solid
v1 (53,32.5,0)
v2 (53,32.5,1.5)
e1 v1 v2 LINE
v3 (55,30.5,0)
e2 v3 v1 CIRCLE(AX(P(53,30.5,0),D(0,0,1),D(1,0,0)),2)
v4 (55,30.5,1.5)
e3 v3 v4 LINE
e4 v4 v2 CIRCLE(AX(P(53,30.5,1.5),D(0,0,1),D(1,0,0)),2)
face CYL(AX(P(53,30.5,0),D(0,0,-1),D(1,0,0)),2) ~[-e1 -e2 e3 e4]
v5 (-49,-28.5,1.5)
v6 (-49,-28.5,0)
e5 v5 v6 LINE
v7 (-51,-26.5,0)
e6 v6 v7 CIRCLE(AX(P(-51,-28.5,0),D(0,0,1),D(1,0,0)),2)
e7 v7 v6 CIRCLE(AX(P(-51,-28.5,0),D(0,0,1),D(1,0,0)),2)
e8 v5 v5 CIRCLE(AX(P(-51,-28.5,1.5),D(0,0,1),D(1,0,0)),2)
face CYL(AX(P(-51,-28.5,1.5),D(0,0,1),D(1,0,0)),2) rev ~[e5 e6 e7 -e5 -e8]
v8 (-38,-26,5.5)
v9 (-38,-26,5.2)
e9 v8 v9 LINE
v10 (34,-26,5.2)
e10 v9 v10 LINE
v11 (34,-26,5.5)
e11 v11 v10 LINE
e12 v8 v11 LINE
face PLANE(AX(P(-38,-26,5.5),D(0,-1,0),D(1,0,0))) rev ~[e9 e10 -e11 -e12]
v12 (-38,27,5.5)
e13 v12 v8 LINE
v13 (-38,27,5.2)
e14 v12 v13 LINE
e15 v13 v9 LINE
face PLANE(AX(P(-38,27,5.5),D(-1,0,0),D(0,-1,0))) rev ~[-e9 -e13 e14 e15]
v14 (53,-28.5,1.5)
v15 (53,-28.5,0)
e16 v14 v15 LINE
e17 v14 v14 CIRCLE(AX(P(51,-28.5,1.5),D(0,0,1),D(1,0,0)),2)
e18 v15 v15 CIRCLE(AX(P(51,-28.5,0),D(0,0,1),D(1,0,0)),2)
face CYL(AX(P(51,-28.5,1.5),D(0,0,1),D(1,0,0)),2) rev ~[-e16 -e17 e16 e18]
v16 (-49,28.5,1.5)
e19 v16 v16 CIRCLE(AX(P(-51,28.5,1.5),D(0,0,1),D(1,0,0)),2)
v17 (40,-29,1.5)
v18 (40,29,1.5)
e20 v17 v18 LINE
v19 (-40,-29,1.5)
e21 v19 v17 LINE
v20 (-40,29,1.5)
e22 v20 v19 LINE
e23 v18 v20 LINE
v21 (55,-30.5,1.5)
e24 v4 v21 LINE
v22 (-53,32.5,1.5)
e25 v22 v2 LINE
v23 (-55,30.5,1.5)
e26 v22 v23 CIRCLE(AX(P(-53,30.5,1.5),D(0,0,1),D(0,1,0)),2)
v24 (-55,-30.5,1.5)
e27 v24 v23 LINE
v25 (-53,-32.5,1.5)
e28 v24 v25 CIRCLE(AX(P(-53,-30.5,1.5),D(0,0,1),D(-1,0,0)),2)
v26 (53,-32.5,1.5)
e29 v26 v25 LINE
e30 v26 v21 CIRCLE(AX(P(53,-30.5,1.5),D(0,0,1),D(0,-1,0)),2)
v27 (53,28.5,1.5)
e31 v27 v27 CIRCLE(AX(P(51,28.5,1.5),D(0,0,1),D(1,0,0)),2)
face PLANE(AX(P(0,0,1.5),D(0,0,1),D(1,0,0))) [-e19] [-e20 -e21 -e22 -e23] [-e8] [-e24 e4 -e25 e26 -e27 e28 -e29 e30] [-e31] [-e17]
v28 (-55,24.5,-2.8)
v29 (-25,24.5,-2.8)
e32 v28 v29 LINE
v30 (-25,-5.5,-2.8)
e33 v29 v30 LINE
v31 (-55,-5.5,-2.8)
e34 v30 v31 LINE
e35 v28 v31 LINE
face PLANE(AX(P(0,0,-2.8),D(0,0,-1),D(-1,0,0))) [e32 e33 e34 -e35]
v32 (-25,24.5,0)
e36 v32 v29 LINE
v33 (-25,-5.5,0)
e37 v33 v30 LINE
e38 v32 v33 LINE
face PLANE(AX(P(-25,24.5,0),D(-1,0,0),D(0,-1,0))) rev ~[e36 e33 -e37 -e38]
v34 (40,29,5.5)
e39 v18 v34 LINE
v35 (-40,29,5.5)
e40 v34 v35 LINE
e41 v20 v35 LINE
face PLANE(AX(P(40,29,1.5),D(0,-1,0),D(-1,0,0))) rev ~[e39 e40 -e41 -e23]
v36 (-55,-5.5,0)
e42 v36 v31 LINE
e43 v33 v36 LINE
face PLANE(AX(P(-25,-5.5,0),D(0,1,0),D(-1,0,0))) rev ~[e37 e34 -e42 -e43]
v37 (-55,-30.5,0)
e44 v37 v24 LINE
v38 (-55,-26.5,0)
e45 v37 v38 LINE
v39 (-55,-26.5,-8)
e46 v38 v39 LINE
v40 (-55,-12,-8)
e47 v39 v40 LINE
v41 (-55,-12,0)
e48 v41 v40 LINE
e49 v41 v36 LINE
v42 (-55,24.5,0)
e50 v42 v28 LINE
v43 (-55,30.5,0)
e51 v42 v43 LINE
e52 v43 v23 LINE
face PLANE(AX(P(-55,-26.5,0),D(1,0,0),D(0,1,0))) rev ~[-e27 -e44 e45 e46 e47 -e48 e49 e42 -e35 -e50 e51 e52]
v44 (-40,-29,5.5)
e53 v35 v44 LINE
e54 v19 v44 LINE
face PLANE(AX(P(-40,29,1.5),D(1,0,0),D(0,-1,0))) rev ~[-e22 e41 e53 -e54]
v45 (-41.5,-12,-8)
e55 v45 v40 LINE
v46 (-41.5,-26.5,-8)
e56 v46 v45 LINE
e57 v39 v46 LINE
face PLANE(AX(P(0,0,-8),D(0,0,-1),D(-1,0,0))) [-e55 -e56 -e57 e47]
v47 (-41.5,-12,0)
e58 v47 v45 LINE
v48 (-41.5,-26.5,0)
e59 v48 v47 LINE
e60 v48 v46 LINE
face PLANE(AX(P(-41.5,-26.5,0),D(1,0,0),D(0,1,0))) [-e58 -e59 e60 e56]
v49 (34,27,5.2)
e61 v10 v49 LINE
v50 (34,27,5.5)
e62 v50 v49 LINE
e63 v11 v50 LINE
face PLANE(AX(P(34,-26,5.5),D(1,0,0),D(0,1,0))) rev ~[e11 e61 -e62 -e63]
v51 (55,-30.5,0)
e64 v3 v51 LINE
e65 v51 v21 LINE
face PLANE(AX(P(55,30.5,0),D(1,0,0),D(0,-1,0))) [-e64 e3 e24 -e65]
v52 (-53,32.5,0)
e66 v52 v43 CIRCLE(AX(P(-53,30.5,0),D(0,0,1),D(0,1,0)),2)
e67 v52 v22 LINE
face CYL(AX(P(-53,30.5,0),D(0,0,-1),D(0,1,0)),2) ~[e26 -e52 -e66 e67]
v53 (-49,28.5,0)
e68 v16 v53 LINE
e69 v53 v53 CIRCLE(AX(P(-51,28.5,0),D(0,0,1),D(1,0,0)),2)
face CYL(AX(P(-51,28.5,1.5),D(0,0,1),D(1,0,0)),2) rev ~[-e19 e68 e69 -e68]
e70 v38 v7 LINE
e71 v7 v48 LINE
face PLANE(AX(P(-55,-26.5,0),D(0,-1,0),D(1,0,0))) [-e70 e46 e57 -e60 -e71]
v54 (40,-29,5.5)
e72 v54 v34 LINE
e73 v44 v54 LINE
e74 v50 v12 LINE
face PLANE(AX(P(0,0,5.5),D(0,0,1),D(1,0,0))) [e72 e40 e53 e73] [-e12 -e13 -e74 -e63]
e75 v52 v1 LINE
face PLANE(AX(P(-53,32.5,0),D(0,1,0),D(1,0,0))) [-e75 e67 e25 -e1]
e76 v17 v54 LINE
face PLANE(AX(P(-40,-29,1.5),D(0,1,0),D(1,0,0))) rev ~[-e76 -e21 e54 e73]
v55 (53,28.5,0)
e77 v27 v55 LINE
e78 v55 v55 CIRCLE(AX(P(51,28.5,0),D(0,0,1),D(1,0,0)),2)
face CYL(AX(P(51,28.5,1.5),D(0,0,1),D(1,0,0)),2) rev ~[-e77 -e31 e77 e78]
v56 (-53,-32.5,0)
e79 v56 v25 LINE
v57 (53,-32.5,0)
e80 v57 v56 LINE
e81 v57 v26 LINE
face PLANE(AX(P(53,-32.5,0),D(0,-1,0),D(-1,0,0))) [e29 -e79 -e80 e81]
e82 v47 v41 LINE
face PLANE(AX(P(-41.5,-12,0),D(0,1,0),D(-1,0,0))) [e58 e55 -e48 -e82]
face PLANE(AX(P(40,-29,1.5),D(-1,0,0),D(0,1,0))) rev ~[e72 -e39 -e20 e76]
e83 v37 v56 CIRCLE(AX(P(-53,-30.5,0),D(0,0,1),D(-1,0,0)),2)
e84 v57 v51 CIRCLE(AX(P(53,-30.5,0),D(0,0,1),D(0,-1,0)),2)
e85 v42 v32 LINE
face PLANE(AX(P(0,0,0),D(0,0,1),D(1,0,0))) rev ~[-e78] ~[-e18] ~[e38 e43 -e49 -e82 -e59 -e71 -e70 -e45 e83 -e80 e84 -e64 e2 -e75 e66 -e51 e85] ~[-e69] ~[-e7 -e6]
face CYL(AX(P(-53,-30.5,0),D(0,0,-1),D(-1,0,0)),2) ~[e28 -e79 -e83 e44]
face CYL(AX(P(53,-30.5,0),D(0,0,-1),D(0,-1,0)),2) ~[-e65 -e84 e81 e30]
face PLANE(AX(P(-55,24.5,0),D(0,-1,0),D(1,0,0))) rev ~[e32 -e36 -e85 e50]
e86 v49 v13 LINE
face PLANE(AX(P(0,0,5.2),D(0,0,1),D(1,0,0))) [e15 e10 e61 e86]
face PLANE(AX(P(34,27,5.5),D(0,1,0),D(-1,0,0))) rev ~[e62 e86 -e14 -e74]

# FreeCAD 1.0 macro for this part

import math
import FreeCAD as App
import Part
import Sketcher

V = App.Vector
Q = App.Units.Quantity

doc = App.newDocument("Part")
body = doc.addObject("PartDesign::Body", "Body")

sketch1 = body.newObject("Sketcher::SketchObject", "Sketch")
sketch1.AttachmentSupport = (doc.getObject("XY_Plane"), [""])
sketch1.MapMode = "FlatFace"
sketch1.addGeometry([
    Part.LineSegment(V(53, 32.5, 0), V(-53, 32.5, 0)),
    Part.ArcOfCircle(Part.Circle(V(-53, 30.5, 0), V(0, 0, 1), 2), math.radians(90), math.radians(180)),
    Part.LineSegment(V(-55, 30.5, 0), V(-55, -30.5, 0)),
    Part.ArcOfCircle(Part.Circle(V(-53, -30.5, 0), V(0, 0, 1), 2), math.radians(180), math.radians(270)),
    Part.LineSegment(V(-53, -32.5, 0), V(53, -32.5, 0)),
    Part.ArcOfCircle(Part.Circle(V(53, -30.5, 0), V(0, 0, 1), 2), math.radians(-90), math.radians(0)),
    Part.LineSegment(V(55, -30.5, 0), V(55, 30.5, 0)),
    Part.ArcOfCircle(Part.Circle(V(53, 30.5, 0), V(0, 0, 1), 2), math.radians(0), math.radians(90)),
], False)
sketch1.addConstraint([
    Sketcher.Constraint("Tangent", 0, 2, 1, 1),
    Sketcher.Constraint("Tangent", 1, 2, 2, 1),
    Sketcher.Constraint("Tangent", 2, 2, 3, 1),
    Sketcher.Constraint("Tangent", 3, 2, 4, 1),
    Sketcher.Constraint("Tangent", 4, 2, 5, 1),
    Sketcher.Constraint("Tangent", 5, 2, 6, 1),
    Sketcher.Constraint("Tangent", 6, 2, 7, 1),
    Sketcher.Constraint("Tangent", 7, 2, 0, 1),
    Sketcher.Constraint("Horizontal", 0),
    Sketcher.Constraint("Vertical", 2),
    Sketcher.Constraint("Horizontal", 4),
    Sketcher.Constraint("Vertical", 6),
    Sketcher.Constraint("Equal", 1, 3),
    Sketcher.Constraint("Equal", 3, 5),
    Sketcher.Constraint("Equal", 5, 7),
    Sketcher.Constraint("Symmetric", 1, 3, 5, 3, -1, 1),
    Sketcher.Constraint("Radius", 1, Q("2 mm")),
    Sketcher.Constraint("DistanceY", 3, 2, 0, 2, Q("65 mm")),
    Sketcher.Constraint("DistanceX", 0, 2, 0, 1, Q("106 mm")),
])
pad1 = body.newObject("PartDesign::Pad", "Pad")
pad1.Profile = sketch1
pad1.Length = 1.5

sketch2 = body.newObject("Sketcher::SketchObject", "Sketch001")
sketch2.AttachmentSupport = (doc.getObject("XY_Plane"), [""])
sketch2.MapMode = "FlatFace"
sketch2.AttachmentOffset = App.Placement(V(0, 0, 1.5), App.Rotation())
sketch2.addGeometry([
    Part.Circle(V(-51, 28.5, 0), V(0, 0, 1), 2),
    Part.Circle(V(-51, -28.5, 0), V(0, 0, 1), 2),
    Part.Circle(V(51, -28.5, 0), V(0, 0, 1), 2),
    Part.Circle(V(51, 28.5, 0), V(0, 0, 1), 2),
], False)
sketch2.addConstraint([
    Sketcher.Constraint("Equal", 0, 1),
    Sketcher.Constraint("Equal", 1, 2),
    Sketcher.Constraint("Equal", 2, 3),
    Sketcher.Constraint("Symmetric", 0, 3, 2, 3, -1, 1),
    Sketcher.Constraint("Symmetric", 1, 3, 3, 3, -1, 1),
    Sketcher.Constraint("Symmetric", 1, 3, 2, 3, -2),
    Sketcher.Constraint("Diameter", 0, Q("4 mm")),
    Sketcher.Constraint("DistanceY", 1, 3, 0, 3, Q("57 mm")),
    Sketcher.Constraint("DistanceX", 1, 3, 2, 3, Q("102 mm")),
])
pocket1 = body.newObject("PartDesign::Pocket", "Pocket")
pocket1.Profile = sketch2
pocket1.Type = "UpToFirst"

sketch3 = body.newObject("Sketcher::SketchObject", "Sketch002")
sketch3.AttachmentSupport = (doc.getObject("XY_Plane"), [""])
sketch3.MapMode = "FlatFace"
sketch3.AttachmentOffset = App.Placement(V(0, 0, 1.5), App.Rotation())
sketch3.addGeometry([
    Part.LineSegment(V(-40, 29, 0), V(-40, -29, 0)),
    Part.LineSegment(V(-40, -29, 0), V(40, -29, 0)),
    Part.LineSegment(V(40, -29, 0), V(40, 29, 0)),
    Part.LineSegment(V(40, 29, 0), V(-40, 29, 0)),
], False)
sketch3.addConstraint([
    Sketcher.Constraint("Coincident", 0, 2, 1, 1),
    Sketcher.Constraint("Coincident", 1, 2, 2, 1),
    Sketcher.Constraint("Coincident", 2, 2, 3, 1),
    Sketcher.Constraint("Coincident", 3, 2, 0, 1),
    Sketcher.Constraint("Vertical", 0),
    Sketcher.Constraint("Horizontal", 1),
    Sketcher.Constraint("Vertical", 2),
    Sketcher.Constraint("Horizontal", 3),
    Sketcher.Constraint("Symmetric", 0, 2, 2, 2, -1, 1),
    Sketcher.Constraint("DistanceX", 1, 1, 1, 2, Q("80 mm")),
    Sketcher.Constraint("DistanceY", 0, 2, 0, 1, Q("58 mm")),
])
pad2 = body.newObject("PartDesign::Pad", "Pad001")
pad2.Profile = sketch3
pad2.Length = 4

sketch4 = body.newObject("Sketcher::SketchObject", "Sketch003")
sketch4.AttachmentSupport = (doc.getObject("XY_Plane"), [""])
sketch4.MapMode = "FlatFace"
sketch4.AttachmentOffset = App.Placement(V(0, 0, 5.5), App.Rotation())
sketch4.addGeometry([
    Part.LineSegment(V(-38, 27, 0), V(-38, -26, 0)),
    Part.LineSegment(V(-38, -26, 0), V(34, -26, 0)),
    Part.LineSegment(V(34, -26, 0), V(34, 27, 0)),
    Part.LineSegment(V(34, 27, 0), V(-38, 27, 0)),
], False)
sketch4.addConstraint([
    Sketcher.Constraint("Coincident", 0, 2, 1, 1),
    Sketcher.Constraint("Coincident", 1, 2, 2, 1),
    Sketcher.Constraint("Coincident", 2, 2, 3, 1),
    Sketcher.Constraint("Coincident", 3, 2, 0, 1),
    Sketcher.Constraint("Vertical", 0),
    Sketcher.Constraint("Horizontal", 1),
    Sketcher.Constraint("Vertical", 2),
    Sketcher.Constraint("Horizontal", 3),
    Sketcher.Constraint("DistanceX", 1, 1, 1, 2, Q("72 mm")),
    Sketcher.Constraint("DistanceY", 0, 2, 0, 1, Q("53 mm")),
    Sketcher.Constraint("DistanceX", 0, 2, -1, 1, Q("38 mm")),
    Sketcher.Constraint("DistanceY", 0, 2, -1, 1, Q("26 mm")),
])
pocket2 = body.newObject("PartDesign::Pocket", "Pocket001")
pocket2.Profile = sketch4
pocket2.Length = 0.3

sketch5 = body.newObject("Sketcher::SketchObject", "Sketch004")
sketch5.AttachmentSupport = (doc.getObject("XY_Plane"), [""])
sketch5.MapMode = "FlatFace"
sketch5.addGeometry([
    Part.LineSegment(V(-42, -26, 0), V(-55, -26, 0)),
    Part.LineSegment(V(-55, -26, 0), V(-55, -12, 0)),
    Part.LineSegment(V(-55, -12, 0), V(-42, -12, 0)),
    Part.LineSegment(V(-42, -12, 0), V(-42, -26, 0)),
], False)
sketch5.addConstraint([
    Sketcher.Constraint("Coincident", 0, 2, 1, 1),
    Sketcher.Constraint("Coincident", 1, 2, 2, 1),
    Sketcher.Constraint("Coincident", 2, 2, 3, 1),
    Sketcher.Constraint("Coincident", 3, 2, 0, 1),
    Sketcher.Constraint("Horizontal", 0),
    Sketcher.Constraint("Vertical", 1),
    Sketcher.Constraint("Horizontal", 2),
    Sketcher.Constraint("Vertical", 3),
    Sketcher.Constraint("DistanceX", 0, 2, 0, 1, Q("13.5 mm")),
    Sketcher.Constraint("DistanceY", 1, 1, 1, 2, Q("14.5 mm")),
    Sketcher.Constraint("DistanceX", 0, 2, -1, 1, Q("55 mm")),
    Sketcher.Constraint("DistanceY", 1, 2, -1, 1, Q("12 mm")),
])
pad3 = body.newObject("PartDesign::Pad", "Pad002")
pad3.Profile = sketch5
pad3.Length = 8
pad3.Reversed = True

sketch6 = body.newObject("Sketcher::SketchObject", "Sketch005")
sketch6.AttachmentSupport = (doc.getObject("XY_Plane"), [""])
sketch6.MapMode = "FlatFace"
sketch6.addGeometry([
    Part.LineSegment(V(-55, -6, 0), V(-55, 24, 0)),
    Part.LineSegment(V(-55, 24, 0), V(-25, 24, 0)),
    Part.LineSegment(V(-25, 24, 0), V(-25, -6, 0)),
    Part.LineSegment(V(-25, -6, 0), V(-55, -6, 0)),
], False)
sketch6.addConstraint([
    Sketcher.Constraint("Coincident", 0, 2, 1, 1),
    Sketcher.Constraint("Coincident", 1, 2, 2, 1),
    Sketcher.Constraint("Coincident", 2, 2, 3, 1),
    Sketcher.Constraint("Coincident", 3, 2, 0, 1),
    Sketcher.Constraint("Vertical", 0),
    Sketcher.Constraint("Horizontal", 1),
    Sketcher.Constraint("Vertical", 2),
    Sketcher.Constraint("Horizontal", 3),
    Sketcher.Constraint("Equal", 3, 0),
    Sketcher.Constraint("DistanceX", 1, 1, 1, 2, Q("30 mm")),
    Sketcher.Constraint("DistanceX", 0, 2, -1, 1, Q("55 mm")),
    Sketcher.Constraint("DistanceY", -1, 1, 0, 2, Q("24.5 mm")),
])
pad4 = body.newObject("PartDesign::Pad", "Pad003")
pad4.Profile = sketch6
pad4.Length = 2.8
pad4.Reversed = True

doc.recompute()
